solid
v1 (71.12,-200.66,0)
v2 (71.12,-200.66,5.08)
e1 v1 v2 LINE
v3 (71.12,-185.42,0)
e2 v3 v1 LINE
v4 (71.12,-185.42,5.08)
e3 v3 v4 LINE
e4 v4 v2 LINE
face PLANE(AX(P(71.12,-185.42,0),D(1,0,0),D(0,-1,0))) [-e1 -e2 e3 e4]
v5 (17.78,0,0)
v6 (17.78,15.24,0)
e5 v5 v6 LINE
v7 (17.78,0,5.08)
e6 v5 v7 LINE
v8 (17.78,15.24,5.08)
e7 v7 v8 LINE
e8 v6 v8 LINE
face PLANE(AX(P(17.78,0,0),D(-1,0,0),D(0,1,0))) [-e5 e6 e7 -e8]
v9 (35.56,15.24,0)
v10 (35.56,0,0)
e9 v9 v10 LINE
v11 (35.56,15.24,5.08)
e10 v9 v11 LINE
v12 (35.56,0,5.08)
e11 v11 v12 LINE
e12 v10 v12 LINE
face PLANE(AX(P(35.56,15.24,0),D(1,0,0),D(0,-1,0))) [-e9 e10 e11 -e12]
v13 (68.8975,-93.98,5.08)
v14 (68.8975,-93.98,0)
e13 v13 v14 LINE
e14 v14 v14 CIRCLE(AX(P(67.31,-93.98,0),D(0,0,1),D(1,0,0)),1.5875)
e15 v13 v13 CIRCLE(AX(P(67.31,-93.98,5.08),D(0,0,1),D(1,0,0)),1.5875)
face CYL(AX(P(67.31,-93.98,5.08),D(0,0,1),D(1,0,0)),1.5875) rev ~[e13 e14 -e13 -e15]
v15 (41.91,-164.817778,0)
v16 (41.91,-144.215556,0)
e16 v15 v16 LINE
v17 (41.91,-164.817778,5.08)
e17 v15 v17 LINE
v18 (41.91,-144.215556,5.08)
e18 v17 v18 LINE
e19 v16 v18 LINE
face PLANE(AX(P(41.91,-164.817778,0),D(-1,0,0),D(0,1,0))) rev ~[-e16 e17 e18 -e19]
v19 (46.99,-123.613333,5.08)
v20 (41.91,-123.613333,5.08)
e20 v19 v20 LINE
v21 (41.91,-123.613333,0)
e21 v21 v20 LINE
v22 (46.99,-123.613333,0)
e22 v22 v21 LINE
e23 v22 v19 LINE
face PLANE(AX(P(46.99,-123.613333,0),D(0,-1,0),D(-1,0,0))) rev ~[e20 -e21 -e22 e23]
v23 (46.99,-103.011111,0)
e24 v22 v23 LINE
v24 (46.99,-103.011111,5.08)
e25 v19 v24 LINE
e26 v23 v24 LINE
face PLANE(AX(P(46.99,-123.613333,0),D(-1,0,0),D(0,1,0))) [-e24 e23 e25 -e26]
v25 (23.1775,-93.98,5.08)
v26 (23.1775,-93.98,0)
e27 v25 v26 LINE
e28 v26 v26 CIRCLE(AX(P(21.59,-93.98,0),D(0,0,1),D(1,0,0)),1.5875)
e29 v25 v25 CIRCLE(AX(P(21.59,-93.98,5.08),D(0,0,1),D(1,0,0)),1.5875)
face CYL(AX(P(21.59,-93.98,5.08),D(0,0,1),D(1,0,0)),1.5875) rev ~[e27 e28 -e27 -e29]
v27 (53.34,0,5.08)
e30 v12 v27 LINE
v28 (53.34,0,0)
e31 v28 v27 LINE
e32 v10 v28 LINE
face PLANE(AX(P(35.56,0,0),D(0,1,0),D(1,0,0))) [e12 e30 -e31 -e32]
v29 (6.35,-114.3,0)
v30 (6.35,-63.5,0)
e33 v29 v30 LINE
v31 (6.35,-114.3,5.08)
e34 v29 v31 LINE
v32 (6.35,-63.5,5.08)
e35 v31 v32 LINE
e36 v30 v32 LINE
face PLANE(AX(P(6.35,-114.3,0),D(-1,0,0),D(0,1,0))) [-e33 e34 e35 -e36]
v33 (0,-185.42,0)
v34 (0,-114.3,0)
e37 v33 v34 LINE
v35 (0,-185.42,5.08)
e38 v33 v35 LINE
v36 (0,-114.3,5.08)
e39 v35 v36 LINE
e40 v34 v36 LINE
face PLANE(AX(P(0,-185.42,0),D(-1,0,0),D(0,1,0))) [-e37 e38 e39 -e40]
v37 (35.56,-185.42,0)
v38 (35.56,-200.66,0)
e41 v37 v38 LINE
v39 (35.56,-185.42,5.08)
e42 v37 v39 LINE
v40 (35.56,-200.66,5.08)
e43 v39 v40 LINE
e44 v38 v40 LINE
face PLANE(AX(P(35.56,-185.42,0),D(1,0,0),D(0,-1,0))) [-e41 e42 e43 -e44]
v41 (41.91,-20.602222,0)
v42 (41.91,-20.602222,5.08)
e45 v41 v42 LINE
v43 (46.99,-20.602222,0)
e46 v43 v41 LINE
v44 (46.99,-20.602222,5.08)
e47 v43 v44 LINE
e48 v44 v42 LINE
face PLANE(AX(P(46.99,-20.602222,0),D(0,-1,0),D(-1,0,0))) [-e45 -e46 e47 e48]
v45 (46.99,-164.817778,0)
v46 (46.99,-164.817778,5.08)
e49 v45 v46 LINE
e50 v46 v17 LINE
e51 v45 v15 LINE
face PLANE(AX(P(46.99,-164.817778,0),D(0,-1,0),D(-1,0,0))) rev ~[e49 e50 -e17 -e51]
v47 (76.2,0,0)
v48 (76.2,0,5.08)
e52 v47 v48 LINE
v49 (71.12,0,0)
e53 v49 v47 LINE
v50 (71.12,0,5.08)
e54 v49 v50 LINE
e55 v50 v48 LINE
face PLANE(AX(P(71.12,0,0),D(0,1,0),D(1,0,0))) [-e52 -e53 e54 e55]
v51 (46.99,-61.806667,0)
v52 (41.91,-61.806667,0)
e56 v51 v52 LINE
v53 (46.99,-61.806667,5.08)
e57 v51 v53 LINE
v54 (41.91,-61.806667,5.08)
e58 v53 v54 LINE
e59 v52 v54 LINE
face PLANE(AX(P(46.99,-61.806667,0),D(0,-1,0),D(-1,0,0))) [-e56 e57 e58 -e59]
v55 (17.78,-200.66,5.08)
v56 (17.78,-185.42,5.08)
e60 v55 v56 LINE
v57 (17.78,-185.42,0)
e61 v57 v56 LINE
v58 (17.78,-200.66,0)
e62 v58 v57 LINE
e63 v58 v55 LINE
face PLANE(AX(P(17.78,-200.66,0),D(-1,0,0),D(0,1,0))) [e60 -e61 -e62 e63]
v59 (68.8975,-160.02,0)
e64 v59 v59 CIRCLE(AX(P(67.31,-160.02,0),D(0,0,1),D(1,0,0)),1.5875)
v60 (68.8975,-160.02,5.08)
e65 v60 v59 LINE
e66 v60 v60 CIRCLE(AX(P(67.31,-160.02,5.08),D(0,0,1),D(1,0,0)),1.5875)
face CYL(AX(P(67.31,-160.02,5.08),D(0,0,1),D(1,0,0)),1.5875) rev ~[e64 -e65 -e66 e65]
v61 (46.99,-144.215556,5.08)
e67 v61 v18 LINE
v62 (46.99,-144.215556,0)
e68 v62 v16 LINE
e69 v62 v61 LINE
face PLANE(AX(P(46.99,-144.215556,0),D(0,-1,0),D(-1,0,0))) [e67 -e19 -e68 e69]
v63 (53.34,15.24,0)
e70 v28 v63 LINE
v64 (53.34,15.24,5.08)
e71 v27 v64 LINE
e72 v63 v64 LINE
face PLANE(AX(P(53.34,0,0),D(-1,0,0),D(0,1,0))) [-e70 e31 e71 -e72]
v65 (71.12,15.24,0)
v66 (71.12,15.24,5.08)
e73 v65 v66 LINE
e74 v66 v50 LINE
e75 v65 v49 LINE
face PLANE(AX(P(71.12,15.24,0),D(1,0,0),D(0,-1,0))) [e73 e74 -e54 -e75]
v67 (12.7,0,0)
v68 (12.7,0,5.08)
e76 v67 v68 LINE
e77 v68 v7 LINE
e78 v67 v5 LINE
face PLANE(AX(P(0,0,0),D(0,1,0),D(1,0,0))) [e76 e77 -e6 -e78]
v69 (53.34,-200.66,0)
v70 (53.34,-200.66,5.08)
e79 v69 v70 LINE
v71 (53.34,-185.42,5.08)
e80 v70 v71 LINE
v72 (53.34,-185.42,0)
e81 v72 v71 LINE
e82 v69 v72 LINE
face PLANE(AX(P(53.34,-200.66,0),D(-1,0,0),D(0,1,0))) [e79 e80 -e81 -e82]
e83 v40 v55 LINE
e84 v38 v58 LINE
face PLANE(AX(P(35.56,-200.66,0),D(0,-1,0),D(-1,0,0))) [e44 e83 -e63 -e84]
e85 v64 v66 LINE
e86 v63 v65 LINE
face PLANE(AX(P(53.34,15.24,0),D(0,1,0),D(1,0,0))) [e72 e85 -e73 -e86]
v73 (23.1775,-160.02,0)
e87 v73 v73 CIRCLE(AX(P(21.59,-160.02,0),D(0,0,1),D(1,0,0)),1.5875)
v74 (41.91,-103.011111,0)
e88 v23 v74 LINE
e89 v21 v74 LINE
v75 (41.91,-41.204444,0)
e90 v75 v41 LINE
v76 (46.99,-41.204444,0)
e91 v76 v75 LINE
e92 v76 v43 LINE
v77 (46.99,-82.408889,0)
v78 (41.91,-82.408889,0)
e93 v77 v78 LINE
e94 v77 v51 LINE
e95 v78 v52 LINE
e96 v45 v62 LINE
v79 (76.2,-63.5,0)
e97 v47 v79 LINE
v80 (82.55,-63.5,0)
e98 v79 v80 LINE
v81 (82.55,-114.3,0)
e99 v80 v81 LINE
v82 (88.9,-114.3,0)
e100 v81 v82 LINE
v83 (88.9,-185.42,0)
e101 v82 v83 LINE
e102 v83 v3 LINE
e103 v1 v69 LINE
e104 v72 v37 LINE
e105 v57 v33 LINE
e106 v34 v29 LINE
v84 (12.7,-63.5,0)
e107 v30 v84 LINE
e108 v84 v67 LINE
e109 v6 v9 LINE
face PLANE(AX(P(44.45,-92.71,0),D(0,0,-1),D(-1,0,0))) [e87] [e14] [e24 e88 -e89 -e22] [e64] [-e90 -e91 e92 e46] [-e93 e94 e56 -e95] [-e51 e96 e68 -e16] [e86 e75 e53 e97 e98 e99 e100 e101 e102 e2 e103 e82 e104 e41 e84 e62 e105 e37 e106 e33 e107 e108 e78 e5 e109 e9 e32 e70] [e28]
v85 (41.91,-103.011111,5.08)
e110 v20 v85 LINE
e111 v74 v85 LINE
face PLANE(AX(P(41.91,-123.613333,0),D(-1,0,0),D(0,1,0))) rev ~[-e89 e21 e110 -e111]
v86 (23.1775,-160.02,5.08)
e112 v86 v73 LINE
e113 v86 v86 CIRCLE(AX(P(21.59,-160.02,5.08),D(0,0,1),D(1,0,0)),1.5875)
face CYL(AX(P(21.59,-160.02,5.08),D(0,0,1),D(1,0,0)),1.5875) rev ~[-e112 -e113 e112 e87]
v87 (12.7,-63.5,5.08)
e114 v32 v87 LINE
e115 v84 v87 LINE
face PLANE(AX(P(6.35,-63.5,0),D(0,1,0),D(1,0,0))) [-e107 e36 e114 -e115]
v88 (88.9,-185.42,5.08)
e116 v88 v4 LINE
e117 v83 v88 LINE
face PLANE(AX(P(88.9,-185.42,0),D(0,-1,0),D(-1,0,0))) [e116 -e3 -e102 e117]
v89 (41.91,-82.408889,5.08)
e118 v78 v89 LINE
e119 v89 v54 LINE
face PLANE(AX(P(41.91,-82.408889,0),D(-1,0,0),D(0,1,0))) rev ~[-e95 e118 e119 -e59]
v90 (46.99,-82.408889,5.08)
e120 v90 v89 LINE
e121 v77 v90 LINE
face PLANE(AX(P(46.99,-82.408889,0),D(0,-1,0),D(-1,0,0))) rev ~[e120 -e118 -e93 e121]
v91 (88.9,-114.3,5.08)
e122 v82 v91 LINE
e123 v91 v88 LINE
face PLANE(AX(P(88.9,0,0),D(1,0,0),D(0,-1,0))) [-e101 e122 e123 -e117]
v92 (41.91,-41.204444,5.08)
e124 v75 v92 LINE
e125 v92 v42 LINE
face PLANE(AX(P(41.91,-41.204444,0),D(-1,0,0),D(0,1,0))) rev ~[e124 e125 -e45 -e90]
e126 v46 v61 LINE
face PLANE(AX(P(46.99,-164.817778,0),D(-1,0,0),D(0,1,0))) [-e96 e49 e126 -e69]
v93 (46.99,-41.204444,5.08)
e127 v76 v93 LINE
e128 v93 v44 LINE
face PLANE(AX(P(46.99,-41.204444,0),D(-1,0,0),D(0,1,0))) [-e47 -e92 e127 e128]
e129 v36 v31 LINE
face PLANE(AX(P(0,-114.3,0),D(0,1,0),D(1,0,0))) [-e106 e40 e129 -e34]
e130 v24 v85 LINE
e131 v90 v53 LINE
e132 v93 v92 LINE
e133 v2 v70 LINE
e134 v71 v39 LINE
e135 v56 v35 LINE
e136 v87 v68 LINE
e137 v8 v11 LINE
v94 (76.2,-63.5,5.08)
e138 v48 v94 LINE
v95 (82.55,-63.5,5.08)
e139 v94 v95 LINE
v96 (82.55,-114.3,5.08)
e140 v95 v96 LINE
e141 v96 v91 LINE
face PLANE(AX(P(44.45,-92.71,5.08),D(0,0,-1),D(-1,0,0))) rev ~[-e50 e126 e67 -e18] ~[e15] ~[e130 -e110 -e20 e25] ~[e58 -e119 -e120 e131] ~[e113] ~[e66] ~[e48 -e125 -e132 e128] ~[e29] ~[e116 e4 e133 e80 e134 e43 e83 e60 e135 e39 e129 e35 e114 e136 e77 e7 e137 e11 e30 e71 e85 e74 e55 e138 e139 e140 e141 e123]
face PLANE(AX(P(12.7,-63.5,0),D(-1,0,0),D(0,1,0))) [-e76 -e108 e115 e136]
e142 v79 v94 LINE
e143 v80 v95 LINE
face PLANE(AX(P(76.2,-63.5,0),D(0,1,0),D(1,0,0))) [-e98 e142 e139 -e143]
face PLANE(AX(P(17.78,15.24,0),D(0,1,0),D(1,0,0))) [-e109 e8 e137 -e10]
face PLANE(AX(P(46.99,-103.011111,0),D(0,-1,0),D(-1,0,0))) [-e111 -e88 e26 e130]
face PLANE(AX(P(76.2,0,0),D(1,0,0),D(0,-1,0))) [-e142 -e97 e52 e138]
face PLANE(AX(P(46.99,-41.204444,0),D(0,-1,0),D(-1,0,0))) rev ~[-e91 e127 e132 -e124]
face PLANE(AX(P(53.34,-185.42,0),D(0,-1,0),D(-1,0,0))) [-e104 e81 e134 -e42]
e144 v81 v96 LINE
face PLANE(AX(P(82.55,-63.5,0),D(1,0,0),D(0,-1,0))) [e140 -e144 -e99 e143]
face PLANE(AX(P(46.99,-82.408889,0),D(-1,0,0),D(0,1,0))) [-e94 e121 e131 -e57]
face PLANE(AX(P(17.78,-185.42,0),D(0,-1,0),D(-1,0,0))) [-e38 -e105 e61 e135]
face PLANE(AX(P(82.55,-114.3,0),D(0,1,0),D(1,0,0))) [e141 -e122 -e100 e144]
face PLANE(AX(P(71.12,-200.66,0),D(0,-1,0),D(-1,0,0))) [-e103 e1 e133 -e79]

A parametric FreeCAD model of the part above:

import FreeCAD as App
import Part
import Sketcher
Q = App.Units.Quantity


def add_polygon(sketch, points):
    """Adds a closed chain of lines whose ends are joined by coincident constraints."""
    first, n = sketch.GeometryCount, len(points)
    for a, b in zip(points, points[1:] + points[:1]):
        sketch.addGeometry(Part.LineSegment(App.Vector(*a, 0), App.Vector(*b, 0)), False)
    for i in range(n):
        sketch.addConstraint(Sketcher.Constraint("Coincident", first + i, 2, first + (i + 1) % n, 1))

doc = App.newDocument("Part")
body = doc.addObject("PartDesign::Body", "Body")

# Sketch on XY plane
sketch1 = body.newObject("Sketcher::SketchObject", "Sketch")
sketch1.AttachmentSupport = (doc.getObject("XY_Plane"), [""])
sketch1.MapMode = "FlatFace"
add_polygon(sketch1, [(17.78, 0), (0, 0), (0, -185.42), (17.78, -185.42), (17.78, -200.66), (35.56, -200.66), (35.56, -185.42), (53.34, -185.42), (53.34, -200.66), (71.12, -200.66), (71.12, -185.42), (88.9, -185.42), (88.9, 0), (71.12, 0), (71.12, 15.24), (53.34, 15.24), (53.34, 0), (35.56, 0), (35.56, 15.24), (17.78, 15.24)])  # lines 0-19
sketch1.addConstraint([
    Sketcher.Constraint("Horizontal", 0),
    Sketcher.Constraint("Vertical", 1),
    Sketcher.Constraint("Horizontal", 2),
    Sketcher.Constraint("Vertical", 3),
    Sketcher.Constraint("Horizontal", 4),
    Sketcher.Constraint("Vertical", 5),
    Sketcher.Constraint("Horizontal", 6),
    Sketcher.Constraint("Vertical", 7),
    Sketcher.Constraint("Horizontal", 8),
    Sketcher.Constraint("Vertical", 9),
    Sketcher.Constraint("Horizontal", 10),
    Sketcher.Constraint("Vertical", 11),
    Sketcher.Constraint("Horizontal", 12),
    Sketcher.Constraint("Vertical", 13),
    Sketcher.Constraint("Horizontal", 14),
    Sketcher.Constraint("Vertical", 15),
    Sketcher.Constraint("Horizontal", 16),
    Sketcher.Constraint("Vertical", 17),
    Sketcher.Constraint("Horizontal", 18),
    Sketcher.Constraint("Vertical", 19),
    Sketcher.Constraint("Coincident", 0, 2, -1, 1),
    Sketcher.Constraint("PointOnObject", 11, 2, -1),
    Sketcher.Constraint("PointOnObject", 15, 2, -1),
    Sketcher.Constraint("Horizontal", 2, 2, 5, 2),
    Sketcher.Constraint("Horizontal", 4, 2, 7, 2),
    Sketcher.Constraint("Horizontal", 6, 2, 9, 2),
    Sketcher.Constraint("Horizontal", 14, 2, 17, 2),
    Sketcher.Constraint("Vertical", 9, 2, 12, 2),
    Sketcher.Constraint("Vertical", 7, 2, 14, 2),
    Sketcher.Constraint("Vertical", 5, 2, 16, 2),
    Sketcher.Constraint("Vertical", 3, 2, 18, 2),
    Sketcher.Constraint("Equal", 2, 4),
    Sketcher.Constraint("Equal", 4, 6),
    Sketcher.Constraint("Equal", 6, 8),
    Sketcher.Constraint("Equal", 8, 10),
    Sketcher.Constraint("Equal", 9, 13),
    Sketcher.Constraint("DistanceX", 0, 2, 0, 1, Q("0.7 in")),
    Sketcher.Constraint("DistanceY", 1, 2, 1, 1, Q("7.3 in")),
    Sketcher.Constraint("DistanceY", 3, 2, 3, 1, Q("0.6 in")),
])
pad1 = body.newObject("PartDesign::Pad", "Pad")
pad1.Profile = sketch1
pad1.Length = Q("0.2 in")

# Sketch on XY plane
sketch2 = body.newObject("Sketcher::SketchObject", "Sketch001")
sketch2.AttachmentSupport = (doc.getObject("XY_Plane"), [""])
sketch2.MapMode = "FlatFace"
sketch2.AttachmentOffset = App.Placement(App.Vector(0, 0, 0.2 * 25.4), App.Rotation())
sketch2.addGeometry([
    Part.Circle(App.Vector(21.59, -93.98, 0), App.Vector(0, 0, 1), 1.5875),
    Part.Circle(App.Vector(67.31, -93.98, 0), App.Vector(0, 0, 1), 1.5875),
    Part.Circle(App.Vector(67.31, -160.02, 0), App.Vector(0, 0, 1), 1.5875),
    Part.Circle(App.Vector(21.59, -160.02, 0), App.Vector(0, 0, 1), 1.5875),
], False)
sketch2.addConstraint([
    Sketcher.Constraint("Equal", 0, 1),
    Sketcher.Constraint("Equal", 1, 2),
    Sketcher.Constraint("Equal", 2, 3),
    Sketcher.Constraint("Horizontal", 0, 3, 1, 3),
    Sketcher.Constraint("Horizontal", 2, 3, 3, 3),
    Sketcher.Constraint("Vertical", 1, 3, 2, 3),
    Sketcher.Constraint("Vertical", 0, 3, 3, 3),
    Sketcher.Constraint("Diameter", 0, Q("0.125 in")),
    Sketcher.Constraint("DistanceY", 0, 3, -1, 1, Q("3.7 in")),
    Sketcher.Constraint("DistanceY", 2, 3, -1, 1, Q("6.3 in")),
    Sketcher.Constraint("DistanceX", 0, 3, 1, 3, Q("1.8 in")),
    Sketcher.Constraint("DistanceX", -1, 1, 0, 3, Q("0.85 in")),
])
pocket1 = body.newObject("PartDesign::Pocket", "Pocket")
pocket1.Profile = sketch2
pocket1.Type = "ThroughAll"

# Sketch on XY plane
sketch3 = body.newObject("Sketcher::SketchObject", "Sketch002")
sketch3.AttachmentSupport = (doc.getObject("XY_Plane"), [""])
sketch3.MapMode = "FlatFace"
add_polygon(sketch3, [(46.99, -144.215556), (46.99, -164.817778), (41.91, -164.817778), (41.91, -144.215556)])  # lines 0-3
add_polygon(sketch3, [(46.99, -61.806667), (46.99, -82.408889), (41.91, -82.408889), (41.91, -61.806667)])  # lines 4-7
add_polygon(sketch3, [(46.99, -20.602222), (46.99, -41.204444), (41.91, -41.204444), (41.91, -20.602222)])  # lines 8-11
add_polygon(sketch3, [(46.99, -103.011111), (46.99, -123.613333), (41.91, -123.613333), (41.91, -103.011111)])  # lines 12-15
sketch3.addConstraint([
    Sketcher.Constraint("Vertical", 0),
    Sketcher.Constraint("Horizontal", 1),
    Sketcher.Constraint("Vertical", 2),
    Sketcher.Constraint("Horizontal", 3),
    Sketcher.Constraint("Vertical", 4),
    Sketcher.Constraint("Horizontal", 5),
    Sketcher.Constraint("Vertical", 6),
    Sketcher.Constraint("Horizontal", 7),
    Sketcher.Constraint("Vertical", 8),
    Sketcher.Constraint("Horizontal", 9),
    Sketcher.Constraint("Vertical", 10),
    Sketcher.Constraint("Horizontal", 11),
    Sketcher.Constraint("Vertical", 12),
    Sketcher.Constraint("Horizontal", 13),
    Sketcher.Constraint("Vertical", 14),
    Sketcher.Constraint("Horizontal", 15),
    Sketcher.Constraint("Vertical", 3, 2, 4, 2),
    Sketcher.Constraint("Vertical", 2, 2, 5, 2),
    Sketcher.Constraint("Vertical", 7, 2, 8, 2),
    Sketcher.Constraint("Vertical", 6, 2, 9, 2),
    Sketcher.Constraint("Vertical", 11, 2, 12, 2),
    Sketcher.Constraint("Vertical", 10, 2, 13, 2),
    Sketcher.Constraint("Equal", 2, 4),
    Sketcher.Constraint("Equal", 6, 8),
    Sketcher.Constraint("Equal", 10, 12),
    Sketcher.Constraint("DistanceX", 1, 2, 1, 1, Q("0.2 in")),
    Sketcher.Constraint("DistanceX", -1, 1, 0, 2, Q("1.85 in")),
    Sketcher.Constraint("DistanceY", 0, 2, 0, 1, 20.602222),
    Sketcher.Constraint("DistanceY", 4, 2, -1, 1, 82.408889),
    Sketcher.Constraint("DistanceY", 14, 2, -1, 1, 103.011111),
    Sketcher.Constraint("DistanceY", 0, 2, 4, 2, 82.408889),
    Sketcher.Constraint("DistanceY", 3, 2, 8, 2, 103.011111),
])
pocket2 = body.newObject("PartDesign::Pocket", "Pocket001")
pocket2.Profile = sketch3
pocket2.Type = "ThroughAll"
pocket2.Reversed = True

# Sketch on XY plane
sketch4 = body.newObject("Sketcher::SketchObject", "Sketch003")
sketch4.AttachmentSupport = (doc.getObject("XY_Plane"), [""])
sketch4.MapMode = "FlatFace"
add_polygon(sketch4, [(76.2, 0), (88.9, 0), (88.9, -114.3), (82.55, -114.3), (82.55, -63.5), (76.2, -63.5)])  # lines 0-5
add_polygon(sketch4, [(12.7, -63.5), (6.35, -63.5), (6.35, -114.3), (0, -114.3), (0, 0), (12.7, 0)])  # lines 6-11
sketch4.addConstraint([
    Sketcher.Constraint("Horizontal", 0),
    Sketcher.Constraint("Vertical", 1),
    Sketcher.Constraint("Horizontal", 2),
    Sketcher.Constraint("Vertical", 3),
    Sketcher.Constraint("Horizontal", 4),
    Sketcher.Constraint("Vertical", 5),
    Sketcher.Constraint("Horizontal", 6),
    Sketcher.Constraint("Vertical", 7),
    Sketcher.Constraint("Horizontal", 8),
    Sketcher.Constraint("Vertical", 9),
    Sketcher.Constraint("Horizontal", 10),
    Sketcher.Constraint("Vertical", 11),
    Sketcher.Constraint("Coincident", 9, 2, -1, 1),
    Sketcher.Constraint("PointOnObject", 0, 2, -1),
    Sketcher.Constraint("Horizontal", 4, 2, 6, 2),
    Sketcher.Constraint("Horizontal", 2, 2, 7, 2),
    Sketcher.Constraint("Equal", 2, 4),
    Sketcher.Constraint("Equal", 4, 6),
    Sketcher.Constraint("Equal", 6, 8),
    Sketcher.Constraint("DistanceY", 3, 1, 3, 2, Q("2 in")),
    Sketcher.Constraint("DistanceX", 0, 1, 0, 2, Q("0.5 in")),
    Sketcher.Constraint("DistanceY", 1, 2, 1, 1, Q("4.5 in")),
    Sketcher.Constraint("DistanceX", -1, 1, 4, 2, Q("3 in")),
])
pocket3 = body.newObject("PartDesign::Pocket", "Pocket002")
pocket3.Profile = sketch4
pocket3.Type = "ThroughAll"
pocket3.Reversed = True

doc.recompute()
